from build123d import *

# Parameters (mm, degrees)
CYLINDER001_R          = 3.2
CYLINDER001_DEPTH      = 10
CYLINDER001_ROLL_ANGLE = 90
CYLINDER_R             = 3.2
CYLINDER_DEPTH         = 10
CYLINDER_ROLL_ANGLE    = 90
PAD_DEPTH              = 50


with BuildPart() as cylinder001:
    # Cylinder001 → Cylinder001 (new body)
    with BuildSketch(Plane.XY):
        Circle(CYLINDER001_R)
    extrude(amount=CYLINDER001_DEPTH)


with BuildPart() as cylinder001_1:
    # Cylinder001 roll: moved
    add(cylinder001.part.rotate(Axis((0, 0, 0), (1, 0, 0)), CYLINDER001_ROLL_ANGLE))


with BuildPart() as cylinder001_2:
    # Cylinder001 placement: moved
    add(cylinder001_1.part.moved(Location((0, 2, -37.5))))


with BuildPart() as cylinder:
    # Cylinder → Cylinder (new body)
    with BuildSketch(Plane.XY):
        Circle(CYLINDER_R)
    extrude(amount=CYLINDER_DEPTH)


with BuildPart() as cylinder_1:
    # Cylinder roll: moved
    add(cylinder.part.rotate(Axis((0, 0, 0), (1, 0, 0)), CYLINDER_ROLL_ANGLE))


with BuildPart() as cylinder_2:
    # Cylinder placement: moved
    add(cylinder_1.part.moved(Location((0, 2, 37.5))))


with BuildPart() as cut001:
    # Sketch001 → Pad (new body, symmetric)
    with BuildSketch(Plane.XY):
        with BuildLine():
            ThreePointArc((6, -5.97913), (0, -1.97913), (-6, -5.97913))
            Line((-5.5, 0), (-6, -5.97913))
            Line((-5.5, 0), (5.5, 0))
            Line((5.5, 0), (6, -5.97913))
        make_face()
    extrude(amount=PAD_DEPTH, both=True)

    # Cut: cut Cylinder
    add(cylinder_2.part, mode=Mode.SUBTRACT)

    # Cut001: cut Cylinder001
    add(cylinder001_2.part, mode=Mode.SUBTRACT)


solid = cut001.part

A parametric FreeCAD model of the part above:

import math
import FreeCAD as App
import Part
import Sketcher
from FreeCAD import Vector

doc = App.newDocument("Part")
body = doc.addObject("PartDesign::Body", "Body")

# Sketch on XY plane
sketch1 = doc.addObject("Sketcher::SketchObject", "Sketch")
body.addObject(sketch1)
sketch1.AttachmentSupport = (doc.XY_Plane, [""])
sketch1.MapMode = "FlatFace"
sketch1.addGeometry(Part.Circle(Vector(0, 0, 0), Vector(0, 0, 1), 3.2), False)
sketch1.addConstraint([
    Sketcher.Constraint("Coincident", 0, 3, -1, 1),
    Sketcher.Constraint("Diameter", 0, 6.4),
])
pad1 = doc.addObject("PartDesign::Pad", "Pad")
body.addObject(pad1)
pad1.Profile = sketch1
pad1.Length = 10
body2 = doc.addObject("PartDesign::Body", "Body001")
doc.recompute()

body.Placement = App.Placement(Vector(0, 0, 0), App.Rotation(Vector(1, 0, 0), 90))
boolean = doc.addObject("PartDesign::Boolean", "Boolean")
body2.addObject(boolean)
boolean.Type = "Fuse"
boolean.addObjects([body])
body3 = doc.addObject("PartDesign::Body", "Body002")
doc.recompute()

body2.Placement = App.Placement(Vector(0, 2, -37.5), App.Rotation(Vector(0, 0, 1), 0))
boolean2 = doc.addObject("PartDesign::Boolean", "Boolean001")
body3.addObject(boolean2)
boolean2.Type = "Fuse"
boolean2.addObjects([body2])
body4 = doc.addObject("PartDesign::Body", "Body003")

# Sketch on XY plane
sketch2 = doc.addObject("Sketcher::SketchObject", "Sketch001")
body4.addObject(sketch2)
sketch2.AttachmentSupport = (doc.getObject("XY_Plane003"), [""])
sketch2.MapMode = "FlatFace"
sketch2.addGeometry(Part.Circle(Vector(0, 0, 0), Vector(0, 0, 1), 3.2), False)
sketch2.addConstraint([
    Sketcher.Constraint("Coincident", 0, 3, -1, 1),
    Sketcher.Constraint("Diameter", 0, 6.4),
])
pad2 = doc.addObject("PartDesign::Pad", "Pad001")
body4.addObject(pad2)
pad2.Profile = sketch2
pad2.Length = 10
body5 = doc.addObject("PartDesign::Body", "Body004")
doc.recompute()

body4.Placement = App.Placement(Vector(0, 0, 0), App.Rotation(Vector(1, 0, 0), 90))
boolean3 = doc.addObject("PartDesign::Boolean", "Boolean002")
body5.addObject(boolean3)
boolean3.Type = "Fuse"
boolean3.addObjects([body4])
body6 = doc.addObject("PartDesign::Body", "Body005")
doc.recompute()

body5.Placement = App.Placement(Vector(0, 2, 37.5), App.Rotation(Vector(0, 0, 1), 0))
boolean4 = doc.addObject("PartDesign::Boolean", "Boolean003")
body6.addObject(boolean4)
boolean4.Type = "Fuse"
boolean4.addObjects([body5])
body7 = doc.addObject("PartDesign::Body", "Body006")

# Sketch on XY plane
sketch3 = doc.addObject("Sketcher::SketchObject", "Sketch002")
body7.addObject(sketch3)
sketch3.AttachmentSupport = (doc.getObject("XY_Plane006"), [""])
sketch3.MapMode = "FlatFace"
sketch3.addGeometry([
    Part.ArcOfCircle(Part.Circle(Vector(0, -8, 0), Vector(0, 0, 1), 6), math.radians(23), math.radians(157)),
    Part.LineSegment(Vector(6, -6, 0), Vector(6, 0, 0)),
    Part.LineSegment(Vector(6, 0, 0), Vector(-6, 0, 0)),
    Part.LineSegment(Vector(-6, 0, 0), Vector(-6, -6, 0)),
], False)
sketch3.addConstraint([
    Sketcher.Constraint("Coincident", 0, 1, 1, 1),
    Sketcher.Constraint("Coincident", 1, 2, 2, 1),
    Sketcher.Constraint("Coincident", 2, 2, 3, 1),
    Sketcher.Constraint("Coincident", 3, 2, 0, 2),
    Sketcher.Constraint("Horizontal", 2),
    Sketcher.Constraint("Symmetric", 1, 2, 2, 2, -1, 1),
    Sketcher.Constraint("Symmetric", 0, 1, 3, 2, -2),
    Sketcher.Constraint("Radius", 0, 6.5),
    Sketcher.Constraint("DistanceX", 2, 2, 2, 1, 11.0),
    Sketcher.Constraint("Distance", 1, 6.0),
    Sketcher.Constraint("DistanceX", -1, 1, 0, 1, 6.0),
])
pad3 = doc.addObject("PartDesign::Pad", "Pad002")
body7.addObject(pad3)
pad3.Profile = sketch3
pad3.Length = 100
pad3.Midplane = True
doc.recompute()

boolean5 = doc.addObject("PartDesign::Boolean", "Boolean004")
body7.addObject(boolean5)
boolean5.Type = "Cut"
boolean5.addObjects([body6])
doc.recompute()

boolean6 = doc.addObject("PartDesign::Boolean", "Boolean005")
body7.addObject(boolean6)
boolean6.Type = "Cut"
boolean6.addObjects([body3])

doc.recompute()
